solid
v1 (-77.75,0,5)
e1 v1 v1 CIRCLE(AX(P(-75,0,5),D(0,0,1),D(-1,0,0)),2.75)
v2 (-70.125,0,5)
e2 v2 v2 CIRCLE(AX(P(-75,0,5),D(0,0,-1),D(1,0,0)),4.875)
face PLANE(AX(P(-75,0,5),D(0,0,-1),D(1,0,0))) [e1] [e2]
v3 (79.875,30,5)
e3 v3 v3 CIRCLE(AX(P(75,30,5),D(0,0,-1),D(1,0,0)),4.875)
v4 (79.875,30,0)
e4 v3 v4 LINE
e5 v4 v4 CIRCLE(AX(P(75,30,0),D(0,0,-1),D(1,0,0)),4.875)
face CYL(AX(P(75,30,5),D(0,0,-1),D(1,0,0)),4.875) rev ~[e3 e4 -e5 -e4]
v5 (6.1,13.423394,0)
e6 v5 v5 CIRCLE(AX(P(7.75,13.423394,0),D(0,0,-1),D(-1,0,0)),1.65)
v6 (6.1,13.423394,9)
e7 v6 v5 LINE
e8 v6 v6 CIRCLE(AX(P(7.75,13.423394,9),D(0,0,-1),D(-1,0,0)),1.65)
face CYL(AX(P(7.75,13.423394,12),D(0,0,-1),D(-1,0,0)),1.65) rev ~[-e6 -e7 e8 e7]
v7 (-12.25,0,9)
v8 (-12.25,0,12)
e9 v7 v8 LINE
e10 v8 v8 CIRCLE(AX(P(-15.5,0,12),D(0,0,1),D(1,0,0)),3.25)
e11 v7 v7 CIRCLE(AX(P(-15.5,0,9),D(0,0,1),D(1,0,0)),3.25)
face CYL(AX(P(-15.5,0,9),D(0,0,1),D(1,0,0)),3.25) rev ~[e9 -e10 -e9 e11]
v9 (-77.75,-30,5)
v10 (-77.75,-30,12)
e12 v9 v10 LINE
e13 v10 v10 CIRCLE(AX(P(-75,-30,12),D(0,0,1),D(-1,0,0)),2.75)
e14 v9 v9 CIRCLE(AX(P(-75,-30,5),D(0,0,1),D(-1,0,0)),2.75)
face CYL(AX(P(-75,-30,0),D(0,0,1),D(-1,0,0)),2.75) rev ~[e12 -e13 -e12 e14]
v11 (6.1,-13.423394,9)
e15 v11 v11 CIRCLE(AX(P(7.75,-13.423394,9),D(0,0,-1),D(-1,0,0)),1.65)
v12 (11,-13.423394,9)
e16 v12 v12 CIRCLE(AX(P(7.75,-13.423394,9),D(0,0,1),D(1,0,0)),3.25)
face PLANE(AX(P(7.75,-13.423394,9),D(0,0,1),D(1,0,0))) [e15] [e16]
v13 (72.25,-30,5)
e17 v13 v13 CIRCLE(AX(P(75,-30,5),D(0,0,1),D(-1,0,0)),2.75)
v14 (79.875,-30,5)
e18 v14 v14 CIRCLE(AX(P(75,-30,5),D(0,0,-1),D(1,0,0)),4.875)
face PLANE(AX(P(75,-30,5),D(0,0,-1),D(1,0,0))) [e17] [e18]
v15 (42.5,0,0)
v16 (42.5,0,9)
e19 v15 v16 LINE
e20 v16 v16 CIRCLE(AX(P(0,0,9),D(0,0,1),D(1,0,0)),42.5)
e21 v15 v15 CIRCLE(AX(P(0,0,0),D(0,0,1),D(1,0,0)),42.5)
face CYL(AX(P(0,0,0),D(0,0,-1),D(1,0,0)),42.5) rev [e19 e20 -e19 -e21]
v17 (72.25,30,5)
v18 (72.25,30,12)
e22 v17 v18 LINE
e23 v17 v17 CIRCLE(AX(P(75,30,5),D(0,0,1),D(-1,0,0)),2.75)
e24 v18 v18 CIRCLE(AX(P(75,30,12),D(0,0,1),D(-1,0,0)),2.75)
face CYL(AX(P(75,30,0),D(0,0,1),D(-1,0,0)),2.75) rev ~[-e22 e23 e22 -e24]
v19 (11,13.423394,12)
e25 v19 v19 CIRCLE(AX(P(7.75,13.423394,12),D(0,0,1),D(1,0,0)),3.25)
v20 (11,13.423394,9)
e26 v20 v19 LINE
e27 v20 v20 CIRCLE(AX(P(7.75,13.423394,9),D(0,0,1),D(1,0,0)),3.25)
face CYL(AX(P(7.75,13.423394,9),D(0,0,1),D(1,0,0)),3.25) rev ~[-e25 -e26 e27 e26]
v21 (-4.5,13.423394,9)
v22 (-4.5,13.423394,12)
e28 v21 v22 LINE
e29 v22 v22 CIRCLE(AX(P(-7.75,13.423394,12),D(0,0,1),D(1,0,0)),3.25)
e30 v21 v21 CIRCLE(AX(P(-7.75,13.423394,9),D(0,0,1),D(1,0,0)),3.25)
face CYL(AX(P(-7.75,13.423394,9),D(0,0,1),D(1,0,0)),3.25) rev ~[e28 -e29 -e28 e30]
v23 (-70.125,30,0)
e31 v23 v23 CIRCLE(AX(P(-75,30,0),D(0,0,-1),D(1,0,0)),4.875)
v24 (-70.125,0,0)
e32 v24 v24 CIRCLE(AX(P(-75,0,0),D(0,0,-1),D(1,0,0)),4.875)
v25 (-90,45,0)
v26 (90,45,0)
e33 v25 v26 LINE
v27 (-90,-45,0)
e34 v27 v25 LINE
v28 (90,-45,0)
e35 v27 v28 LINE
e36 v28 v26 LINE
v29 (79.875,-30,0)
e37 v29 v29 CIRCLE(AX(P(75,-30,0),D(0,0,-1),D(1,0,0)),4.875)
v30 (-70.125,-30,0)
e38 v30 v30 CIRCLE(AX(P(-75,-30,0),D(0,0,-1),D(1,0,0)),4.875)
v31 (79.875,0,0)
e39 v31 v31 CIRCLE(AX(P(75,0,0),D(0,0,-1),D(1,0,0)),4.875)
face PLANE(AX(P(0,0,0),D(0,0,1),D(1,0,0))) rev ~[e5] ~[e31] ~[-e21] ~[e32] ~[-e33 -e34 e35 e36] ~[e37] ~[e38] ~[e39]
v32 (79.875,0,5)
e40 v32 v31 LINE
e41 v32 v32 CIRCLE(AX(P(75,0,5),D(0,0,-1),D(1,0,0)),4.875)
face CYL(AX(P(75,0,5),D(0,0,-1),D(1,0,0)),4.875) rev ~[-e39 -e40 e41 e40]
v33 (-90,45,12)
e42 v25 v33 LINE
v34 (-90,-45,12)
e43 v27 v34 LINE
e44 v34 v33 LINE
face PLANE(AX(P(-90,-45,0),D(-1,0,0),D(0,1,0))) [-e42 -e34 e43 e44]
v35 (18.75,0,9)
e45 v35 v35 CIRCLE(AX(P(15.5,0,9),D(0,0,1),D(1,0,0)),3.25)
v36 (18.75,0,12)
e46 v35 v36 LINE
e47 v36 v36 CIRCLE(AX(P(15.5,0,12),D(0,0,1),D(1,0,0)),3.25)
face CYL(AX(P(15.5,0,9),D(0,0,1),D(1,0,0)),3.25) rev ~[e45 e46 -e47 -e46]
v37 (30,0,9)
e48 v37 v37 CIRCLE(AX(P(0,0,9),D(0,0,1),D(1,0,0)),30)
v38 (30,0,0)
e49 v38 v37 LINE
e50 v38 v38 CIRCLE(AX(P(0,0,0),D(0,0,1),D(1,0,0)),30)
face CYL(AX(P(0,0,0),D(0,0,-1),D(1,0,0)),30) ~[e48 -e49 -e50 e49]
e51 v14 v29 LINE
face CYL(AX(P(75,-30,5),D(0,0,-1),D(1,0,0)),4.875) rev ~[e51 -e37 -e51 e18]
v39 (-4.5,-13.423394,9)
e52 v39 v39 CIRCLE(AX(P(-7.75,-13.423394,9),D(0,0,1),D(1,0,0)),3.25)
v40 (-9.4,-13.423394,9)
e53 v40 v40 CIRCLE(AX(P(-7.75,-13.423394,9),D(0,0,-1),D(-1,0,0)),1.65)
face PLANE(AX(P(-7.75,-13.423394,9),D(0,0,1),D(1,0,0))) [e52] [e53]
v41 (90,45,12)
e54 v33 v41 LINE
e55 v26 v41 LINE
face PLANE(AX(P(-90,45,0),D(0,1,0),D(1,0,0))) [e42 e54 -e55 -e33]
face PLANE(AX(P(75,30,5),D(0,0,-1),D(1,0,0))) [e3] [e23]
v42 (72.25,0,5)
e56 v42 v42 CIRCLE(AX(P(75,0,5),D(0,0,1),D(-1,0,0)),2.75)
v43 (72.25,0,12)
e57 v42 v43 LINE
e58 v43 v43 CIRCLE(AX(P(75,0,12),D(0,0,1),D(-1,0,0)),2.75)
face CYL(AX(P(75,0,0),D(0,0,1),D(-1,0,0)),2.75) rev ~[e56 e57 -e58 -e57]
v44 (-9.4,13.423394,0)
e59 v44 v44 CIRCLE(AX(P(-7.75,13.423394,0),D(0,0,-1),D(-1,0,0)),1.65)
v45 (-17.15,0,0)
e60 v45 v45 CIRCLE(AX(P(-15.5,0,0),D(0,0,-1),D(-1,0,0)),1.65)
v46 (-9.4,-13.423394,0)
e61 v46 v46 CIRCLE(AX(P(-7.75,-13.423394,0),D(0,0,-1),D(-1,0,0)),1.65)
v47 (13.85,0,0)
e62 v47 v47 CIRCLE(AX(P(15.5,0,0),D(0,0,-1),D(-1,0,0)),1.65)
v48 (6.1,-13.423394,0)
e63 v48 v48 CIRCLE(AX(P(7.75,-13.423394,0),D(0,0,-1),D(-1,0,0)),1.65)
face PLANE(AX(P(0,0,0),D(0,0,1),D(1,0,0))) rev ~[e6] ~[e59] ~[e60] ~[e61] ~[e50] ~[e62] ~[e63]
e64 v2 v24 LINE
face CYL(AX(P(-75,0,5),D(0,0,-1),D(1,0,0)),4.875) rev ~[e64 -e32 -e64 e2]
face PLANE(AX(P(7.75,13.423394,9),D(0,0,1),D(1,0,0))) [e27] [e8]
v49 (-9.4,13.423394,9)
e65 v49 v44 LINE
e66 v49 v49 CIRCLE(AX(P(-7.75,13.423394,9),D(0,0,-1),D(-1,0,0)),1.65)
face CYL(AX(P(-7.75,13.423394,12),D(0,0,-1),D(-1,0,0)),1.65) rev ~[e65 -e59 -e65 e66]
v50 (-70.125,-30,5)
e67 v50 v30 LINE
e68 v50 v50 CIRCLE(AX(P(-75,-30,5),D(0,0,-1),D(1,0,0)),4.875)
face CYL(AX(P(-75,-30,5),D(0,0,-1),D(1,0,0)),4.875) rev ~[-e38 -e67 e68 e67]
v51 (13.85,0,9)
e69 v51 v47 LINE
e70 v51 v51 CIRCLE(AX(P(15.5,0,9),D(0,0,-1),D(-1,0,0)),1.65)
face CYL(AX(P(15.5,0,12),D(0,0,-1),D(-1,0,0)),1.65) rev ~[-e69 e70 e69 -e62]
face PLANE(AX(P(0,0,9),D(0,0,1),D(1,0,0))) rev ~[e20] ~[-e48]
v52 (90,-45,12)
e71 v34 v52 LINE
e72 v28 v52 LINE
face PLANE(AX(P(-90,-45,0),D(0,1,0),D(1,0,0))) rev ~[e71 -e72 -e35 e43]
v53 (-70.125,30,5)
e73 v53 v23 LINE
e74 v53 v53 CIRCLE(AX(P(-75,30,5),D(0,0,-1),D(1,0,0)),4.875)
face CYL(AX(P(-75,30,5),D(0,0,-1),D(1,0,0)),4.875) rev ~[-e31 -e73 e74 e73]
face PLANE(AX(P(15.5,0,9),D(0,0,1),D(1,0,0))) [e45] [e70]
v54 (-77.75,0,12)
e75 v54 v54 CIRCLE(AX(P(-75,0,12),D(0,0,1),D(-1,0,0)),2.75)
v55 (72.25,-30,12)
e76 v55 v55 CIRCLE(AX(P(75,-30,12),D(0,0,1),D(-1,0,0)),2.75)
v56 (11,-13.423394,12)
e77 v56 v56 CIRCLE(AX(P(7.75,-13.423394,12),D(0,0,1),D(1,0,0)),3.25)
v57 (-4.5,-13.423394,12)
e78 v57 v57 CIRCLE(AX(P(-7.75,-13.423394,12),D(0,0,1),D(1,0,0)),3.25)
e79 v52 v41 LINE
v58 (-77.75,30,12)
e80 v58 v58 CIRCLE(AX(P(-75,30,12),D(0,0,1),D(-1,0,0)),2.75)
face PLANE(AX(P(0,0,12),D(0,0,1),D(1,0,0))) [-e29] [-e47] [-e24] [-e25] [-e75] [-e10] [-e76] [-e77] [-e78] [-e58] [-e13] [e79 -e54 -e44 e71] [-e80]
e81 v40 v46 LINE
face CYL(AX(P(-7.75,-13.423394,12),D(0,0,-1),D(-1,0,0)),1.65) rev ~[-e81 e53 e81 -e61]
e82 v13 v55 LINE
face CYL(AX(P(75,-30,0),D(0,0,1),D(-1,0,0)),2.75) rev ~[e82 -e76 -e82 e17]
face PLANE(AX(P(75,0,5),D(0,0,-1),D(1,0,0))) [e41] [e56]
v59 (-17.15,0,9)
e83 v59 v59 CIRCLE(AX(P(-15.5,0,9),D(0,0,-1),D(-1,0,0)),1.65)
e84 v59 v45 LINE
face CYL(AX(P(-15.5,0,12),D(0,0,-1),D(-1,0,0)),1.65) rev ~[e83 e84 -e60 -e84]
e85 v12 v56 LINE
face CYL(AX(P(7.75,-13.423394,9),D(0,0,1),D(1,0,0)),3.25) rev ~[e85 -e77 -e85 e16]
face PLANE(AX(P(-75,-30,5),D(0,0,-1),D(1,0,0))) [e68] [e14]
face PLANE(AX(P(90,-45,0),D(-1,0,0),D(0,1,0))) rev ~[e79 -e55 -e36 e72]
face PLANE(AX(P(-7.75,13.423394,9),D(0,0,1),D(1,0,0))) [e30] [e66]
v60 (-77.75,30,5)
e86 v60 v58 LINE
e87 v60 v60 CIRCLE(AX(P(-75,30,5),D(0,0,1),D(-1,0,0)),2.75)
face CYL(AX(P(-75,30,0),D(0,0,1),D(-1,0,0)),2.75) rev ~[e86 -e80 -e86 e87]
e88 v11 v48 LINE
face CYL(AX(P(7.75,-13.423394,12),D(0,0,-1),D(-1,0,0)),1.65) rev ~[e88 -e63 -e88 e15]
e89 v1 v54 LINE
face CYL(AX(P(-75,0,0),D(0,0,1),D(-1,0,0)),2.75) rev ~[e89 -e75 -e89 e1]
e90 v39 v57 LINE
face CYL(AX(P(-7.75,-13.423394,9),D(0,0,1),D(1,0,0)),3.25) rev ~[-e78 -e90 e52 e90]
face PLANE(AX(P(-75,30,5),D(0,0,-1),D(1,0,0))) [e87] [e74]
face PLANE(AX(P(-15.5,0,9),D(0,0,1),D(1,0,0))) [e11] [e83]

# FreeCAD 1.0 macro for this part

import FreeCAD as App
import Part
import Sketcher
Q = App.Units.Quantity


def add_polygon(sketch, points):
    """Adds a closed chain of lines whose ends are joined by coincident constraints."""
    first, n = sketch.GeometryCount, len(points)
    for a, b in zip(points, points[1:] + points[:1]):
        sketch.addGeometry(Part.LineSegment(App.Vector(*a, 0), App.Vector(*b, 0)), False)
    for i in range(n):
        sketch.addConstraint(Sketcher.Constraint("Coincident", first + i, 2, first + (i + 1) % n, 1))

doc = App.newDocument("Part")
body = doc.addObject("PartDesign::Body", "Body")

sketch1 = body.newObject("Sketcher::SketchObject", "Sketch")
sketch1.AttachmentSupport = (doc.getObject("XY_Plane"), [""])
sketch1.MapMode = "FlatFace"
add_polygon(sketch1, [(-90, 45), (-90, -45), (90, -45), (90, 45)])
sketch1.addConstraint(Sketcher.Constraint("Vertical", 0))
sketch1.addConstraint(Sketcher.Constraint("Horizontal", 1))
sketch1.addConstraint(Sketcher.Constraint("Vertical", 2))
sketch1.addConstraint(Sketcher.Constraint("Horizontal", 3))
sketch1.addConstraint(Sketcher.Constraint("Symmetric", 0, 2, 2, 2, -1, 1))
sketch1.addConstraint(Sketcher.Constraint("DistanceX", 1, 1, 1, 2, Q("180 mm")))
sketch1.addConstraint(Sketcher.Constraint("DistanceY", 0, 2, 0, 1, Q("90 mm")))
pad1 = body.newObject("PartDesign::Pad", "Pad")
pad1.Profile = sketch1
pad1.Length = 12

sketch2 = body.newObject("Sketcher::SketchObject", "Sketch001")
sketch2.AttachmentSupport = (doc.getObject("XY_Plane"), [""])
sketch2.MapMode = "FlatFace"
sketch2.addGeometry(Part.Circle(App.Vector(75, -30, 0), App.Vector(0, 0, 1), 2.8), False)
sketch2.addGeometry(Part.Circle(App.Vector(75, 0, 0), App.Vector(0, 0, 1), 2.8), False)
sketch2.addGeometry(Part.Circle(App.Vector(75, 30, 0), App.Vector(0, 0, 1), 2.8), False)
sketch2.addGeometry(Part.Circle(App.Vector(-75, 30, 0), App.Vector(0, 0, 1), 2.8), False)
sketch2.addGeometry(Part.Circle(App.Vector(-75, 0, 0), App.Vector(0, 0, 1), 2.8), False)
sketch2.addGeometry(Part.Circle(App.Vector(-75, -30, 0), App.Vector(0, 0, 1), 2.8), False)
sketch2.addConstraint(Sketcher.Constraint("Equal", 0, 1))
sketch2.addConstraint(Sketcher.Constraint("Equal", 1, 2))
sketch2.addConstraint(Sketcher.Constraint("Equal", 2, 3))
sketch2.addConstraint(Sketcher.Constraint("Equal", 3, 4))
sketch2.addConstraint(Sketcher.Constraint("Equal", 4, 5))
sketch2.addConstraint(Sketcher.Constraint("Symmetric", 0, 3, 3, 3, -1, 1))
sketch2.addConstraint(Sketcher.Constraint("Symmetric", 1, 3, 4, 3, -1, 1))
sketch2.addConstraint(Sketcher.Constraint("Symmetric", 2, 3, 5, 3, -1, 1))
sketch2.addConstraint(Sketcher.Constraint("Symmetric", 2, 3, 3, 3, -2))
sketch2.addConstraint(Sketcher.Constraint("PointOnObject", 1, 3, -1))
sketch2.addConstraint(Sketcher.Constraint("Vertical", 0, 3, 1, 3))
sketch2.addConstraint(Sketcher.Constraint("Diameter", 0, Q("5.5 mm")))
sketch2.addConstraint(Sketcher.Constraint("DistanceX", -1, 1, 0, 3, Q("75 mm")))
sketch2.addConstraint(Sketcher.Constraint("DistanceY", 0, 3, -1, 1, Q("30 mm")))
doc.recompute()
hole = body.newObject("PartDesign::Hole", "Hole")
hole.Profile = sketch2
hole.ThreadType = "None"
hole.Diameter = 5.5
hole.DepthType = "ThroughAll"
hole.HoleCutType = "Counterbore"
hole.HoleCutDiameter = 9.75
hole.HoleCutDepth = 5
hole.Reversed = True

sketch3 = body.newObject("Sketcher::SketchObject", "Sketch002")
sketch3.AttachmentSupport = (doc.getObject("XY_Plane"), [""])
sketch3.MapMode = "FlatFace"
sketch3.AttachmentOffset = App.Placement(App.Vector(0, 0, 12), App.Rotation())
sketch3.addGeometry(Part.Circle(App.Vector(-15.5, 0, 0), App.Vector(0, 0, 1), 1.6), False)
sketch3.addGeometry(Part.Circle(App.Vector(-7.8, 13.4, 0), App.Vector(0, 0, 1), 1.6), False)
sketch3.addGeometry(Part.Circle(App.Vector(7.8, 13.4, 0), App.Vector(0, 0, 1), 1.6), False)
sketch3.addGeometry(Part.Circle(App.Vector(15.5, 0, 0), App.Vector(0, 0, 1), 1.6), False)
sketch3.addGeometry(Part.Circle(App.Vector(7.8, -13.4, 0), App.Vector(0, 0, 1), 1.6), False)
sketch3.addGeometry(Part.Circle(App.Vector(-7.8, -13.4, 0), App.Vector(0, 0, 1), 1.6), False)
sketch3.addConstraint(Sketcher.Constraint("Equal", 0, 1))
sketch3.addConstraint(Sketcher.Constraint("Equal", 1, 2))
sketch3.addConstraint(Sketcher.Constraint("Equal", 2, 3))
sketch3.addConstraint(Sketcher.Constraint("Equal", 3, 4))
sketch3.addConstraint(Sketcher.Constraint("Equal", 4, 5))
sketch3.addConstraint(Sketcher.Constraint("Symmetric", 0, 3, 3, 3, -1, 1))
sketch3.addConstraint(Sketcher.Constraint("Symmetric", 1, 3, 4, 3, -1, 1))
sketch3.addConstraint(Sketcher.Constraint("Symmetric", 2, 3, 5, 3, -1, 1))
sketch3.addConstraint(Sketcher.Constraint("Symmetric", 1, 3, 2, 3, -2))
sketch3.addConstraint(Sketcher.Constraint("PointOnObject", 0, 3, -1))
sketch3.addConstraint(Sketcher.Constraint("Diameter", 0, Q("3.3 mm")))
sketch3.addConstraint(Sketcher.Constraint("DistanceX", 0, 3, 3, 3, Q("31 mm")))
sketch3.addConstraint(Sketcher.Constraint("DistanceX", 1, 3, 2, 3, Q("15.5 mm")))
sketch3.addConstraint(Sketcher.Constraint("DistanceY", -1, 1, 1, 3, Q("13.423394 mm")))
doc.recompute()
hole2 = body.newObject("PartDesign::Hole", "Hole001")
hole2.Profile = sketch3
hole2.ThreadType = "None"
hole2.Diameter = 3.3
hole2.DepthType = "ThroughAll"
hole2.HoleCutType = "Counterbore"
hole2.HoleCutDiameter = 6.5
hole2.HoleCutDepth = 3

sketch4 = body.newObject("Sketcher::SketchObject", "Sketch003")
sketch4.AttachmentSupport = (doc.getObject("XY_Plane"), [""])
sketch4.MapMode = "FlatFace"
sketch4.addGeometry(Part.Circle(App.Vector(0, 0, 0), App.Vector(0, 0, 1), 42), False)
sketch4.addGeometry(Part.Circle(App.Vector(0, 0, 0), App.Vector(0, 0, 1), 30), False)
sketch4.addConstraint(Sketcher.Constraint("Coincident", 0, 3, -1, 1))
sketch4.addConstraint(Sketcher.Constraint("Coincident", 1, 3, -1, 1))
sketch4.addConstraint(Sketcher.Constraint("Diameter", 0, Q("85 mm")))
sketch4.addConstraint(Sketcher.Constraint("Diameter", 1, Q("60 mm")))
pocket1 = body.newObject("PartDesign::Pocket", "Pocket")
pocket1.Profile = sketch4
pocket1.Length = 9
pocket1.Reversed = True

doc.recompute()
